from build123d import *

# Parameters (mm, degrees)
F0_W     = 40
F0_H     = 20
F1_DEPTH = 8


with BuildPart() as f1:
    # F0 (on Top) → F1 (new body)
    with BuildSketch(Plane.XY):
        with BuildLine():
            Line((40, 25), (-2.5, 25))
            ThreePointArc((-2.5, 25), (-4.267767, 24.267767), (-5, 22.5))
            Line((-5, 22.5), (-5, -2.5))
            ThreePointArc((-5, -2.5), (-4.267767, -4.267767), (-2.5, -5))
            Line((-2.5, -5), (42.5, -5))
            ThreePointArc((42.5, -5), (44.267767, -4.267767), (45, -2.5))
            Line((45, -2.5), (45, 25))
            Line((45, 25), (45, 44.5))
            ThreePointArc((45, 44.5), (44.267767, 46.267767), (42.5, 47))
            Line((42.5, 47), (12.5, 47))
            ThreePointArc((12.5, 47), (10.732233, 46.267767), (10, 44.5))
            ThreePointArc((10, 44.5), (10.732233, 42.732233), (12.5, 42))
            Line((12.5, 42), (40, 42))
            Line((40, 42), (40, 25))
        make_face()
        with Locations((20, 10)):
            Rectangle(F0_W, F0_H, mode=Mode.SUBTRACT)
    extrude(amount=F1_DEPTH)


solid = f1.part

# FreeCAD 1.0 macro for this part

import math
import FreeCAD as App
import Part
import Sketcher

V = App.Vector
Q = App.Units.Quantity


def add_polygon(sketch, points):
    """Adds a closed chain of lines whose ends are joined by coincident constraints."""
    first, n = sketch.GeometryCount, len(points)
    for a, b in zip(points, points[1:] + points[:1]):
        sketch.addGeometry(Part.LineSegment(App.Vector(*a, 0), App.Vector(*b, 0)), False)
    for i in range(n):
        sketch.addConstraint(Sketcher.Constraint("Coincident", first + i, 2, first + (i + 1) % n, 1))

doc = App.newDocument("Part")
body = doc.addObject("PartDesign::Body", "Body")

sketch1 = body.newObject("Sketcher::SketchObject", "Sketch")
sketch1.AttachmentSupport = (doc.getObject("XY_Plane"), [""])
sketch1.MapMode = "FlatFace"
sketch1.addGeometry(Part.LineSegment(V(40, 25, 0), V(-2.5, 25, 0)), False)
sketch1.addGeometry(Part.ArcOfCircle(Part.Circle(V(-2.5, 22.5, 0), V(0, 0, 1), 2.5), math.radians(90), math.radians(180)), False)
sketch1.addGeometry(Part.LineSegment(V(-5, 22.5, 0), V(-5, -2.5, 0)), False)
sketch1.addGeometry(Part.ArcOfCircle(Part.Circle(V(-2.5, -2.5, 0), V(0, 0, 1), 2.5), math.radians(180), math.radians(270)), False)
sketch1.addGeometry(Part.LineSegment(V(-2.5, -5, 0), V(42.5, -5, 0)), False)
sketch1.addGeometry(Part.ArcOfCircle(Part.Circle(V(42.5, -2.5, 0), V(0, 0, 1), 2.5), math.radians(-90), math.radians(0)), False)
sketch1.addGeometry(Part.LineSegment(V(45, -2.5, 0), V(45, 44.5, 0)), False)
sketch1.addGeometry(Part.ArcOfCircle(Part.Circle(V(42.5, 44.5, 0), V(0, 0, 1), 2.5), math.radians(0), math.radians(90)), False)
sketch1.addGeometry(Part.LineSegment(V(42.5, 47, 0), V(12.5, 47, 0)), False)
sketch1.addGeometry(Part.ArcOfCircle(Part.Circle(V(12.5, 44.5, 0), V(0, 0, 1), 2.5), math.radians(90), math.radians(180)), False)
sketch1.addGeometry(Part.ArcOfCircle(Part.Circle(V(12.5, 44.5, 0), V(0, 0, 1), 2.5), math.radians(180), math.radians(270)), False)
sketch1.addGeometry(Part.LineSegment(V(12.5, 42, 0), V(40, 42, 0)), False)
sketch1.addGeometry(Part.LineSegment(V(40, 42, 0), V(40, 25, 0)), False)
add_polygon(sketch1, [(40, 0), (0, 0), (0, 20), (40, 20)])
sketch1.addConstraint([
    Sketcher.Constraint("Tangent", 0, 2, 1, 1),
    Sketcher.Constraint("Tangent", 1, 2, 2, 1),
    Sketcher.Constraint("Tangent", 2, 2, 3, 1),
    Sketcher.Constraint("Tangent", 3, 2, 4, 1),
    Sketcher.Constraint("Tangent", 4, 2, 5, 1),
    Sketcher.Constraint("Tangent", 5, 2, 6, 1),
    Sketcher.Constraint("Tangent", 6, 2, 7, 1),
    Sketcher.Constraint("Tangent", 7, 2, 8, 1),
    Sketcher.Constraint("Tangent", 8, 2, 9, 1),
    Sketcher.Constraint("Tangent", 9, 2, 10, 1),
    Sketcher.Constraint("Tangent", 10, 2, 11, 1),
    Sketcher.Constraint("Coincident", 11, 2, 12, 1),
    Sketcher.Constraint("Coincident", 12, 2, 0, 1),
    Sketcher.Constraint("Horizontal", 0),
    Sketcher.Constraint("Vertical", 2),
    Sketcher.Constraint("Horizontal", 4),
    Sketcher.Constraint("Vertical", 6),
    Sketcher.Constraint("Horizontal", 8),
    Sketcher.Constraint("Horizontal", 11),
    Sketcher.Constraint("Vertical", 12),
    Sketcher.Constraint("Horizontal", 13),
    Sketcher.Constraint("Vertical", 14),
    Sketcher.Constraint("Horizontal", 15),
    Sketcher.Constraint("Vertical", 16),
    Sketcher.Constraint("Coincident", 13, 2, -1, 1),
    Sketcher.Constraint("Equal", 1, 3),
    Sketcher.Constraint("Equal", 3, 5),
    Sketcher.Constraint("Equal", 5, 7),
    Sketcher.Constraint("Equal", 7, 9),
    Sketcher.Constraint("Equal", 9, 10),
    Sketcher.Constraint("Horizontal", 6, 2, 9, 2),
    Sketcher.Constraint("Vertical", 12, 2, 15, 2),
    Sketcher.Constraint("Radius", 1, Q("2.5 mm")),
    Sketcher.Constraint("DistanceX", 4, 1, 4, 2, Q("45 mm")),
    Sketcher.Constraint("DistanceX", 8, 2, 8, 1, Q("30 mm")),
    Sketcher.Constraint("DistanceX", 13, 2, 13, 1, Q("40 mm")),
    Sketcher.Constraint("DistanceY", 2, 2, 2, 1, Q("25 mm")),
    Sketcher.Constraint("DistanceY", 6, 1, 6, 2, Q("47 mm")),
    Sketcher.Constraint("DistanceY", 14, 1, 14, 2, Q("20 mm")),
    Sketcher.Constraint("DistanceX", 0, 2, 0, 1, Q("42.5 mm")),
    Sketcher.Constraint("DistanceY", -1, 1, 0, 2, Q("25 mm")),
])
pad1 = body.newObject("PartDesign::Pad", "Pad")
pad1.Profile = sketch1
pad1.Length = 8

doc.recompute()
